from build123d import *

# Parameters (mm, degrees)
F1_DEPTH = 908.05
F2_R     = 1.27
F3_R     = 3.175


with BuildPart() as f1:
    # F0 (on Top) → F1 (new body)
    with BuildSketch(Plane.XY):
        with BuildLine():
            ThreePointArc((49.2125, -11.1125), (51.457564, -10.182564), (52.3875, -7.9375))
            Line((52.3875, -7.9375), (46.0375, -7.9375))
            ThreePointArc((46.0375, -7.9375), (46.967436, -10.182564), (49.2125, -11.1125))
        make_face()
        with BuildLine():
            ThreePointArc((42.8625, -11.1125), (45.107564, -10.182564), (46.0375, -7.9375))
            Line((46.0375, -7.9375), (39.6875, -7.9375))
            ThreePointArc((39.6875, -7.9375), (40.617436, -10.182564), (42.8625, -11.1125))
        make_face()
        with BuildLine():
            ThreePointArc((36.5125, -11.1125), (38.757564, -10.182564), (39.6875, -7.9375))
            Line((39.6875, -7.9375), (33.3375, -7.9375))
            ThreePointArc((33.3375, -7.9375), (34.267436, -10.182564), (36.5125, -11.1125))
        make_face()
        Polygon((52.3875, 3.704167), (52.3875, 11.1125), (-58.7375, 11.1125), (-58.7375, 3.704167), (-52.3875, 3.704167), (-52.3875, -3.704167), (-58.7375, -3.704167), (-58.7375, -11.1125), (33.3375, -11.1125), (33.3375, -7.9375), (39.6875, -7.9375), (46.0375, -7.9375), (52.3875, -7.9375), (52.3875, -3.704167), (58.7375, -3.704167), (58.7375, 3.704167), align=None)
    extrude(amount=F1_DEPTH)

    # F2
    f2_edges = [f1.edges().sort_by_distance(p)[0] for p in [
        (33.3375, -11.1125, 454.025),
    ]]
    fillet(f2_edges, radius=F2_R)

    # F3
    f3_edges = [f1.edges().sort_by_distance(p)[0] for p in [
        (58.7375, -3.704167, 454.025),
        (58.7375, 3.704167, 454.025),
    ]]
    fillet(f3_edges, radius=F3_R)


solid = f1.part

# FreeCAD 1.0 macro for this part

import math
import FreeCAD as App
import Part
import Sketcher

V = App.Vector
Q = App.Units.Quantity


def edges_at(feature, points):
    """Names of the edges that pass closest to the given points."""
    edges = feature.Shape.Edges
    near = lambda p: min(range(len(edges)), key=lambda i: edges[i].distToShape(Part.Vertex(*p))[0])
    return sorted({f"Edge{near(p) + 1}" for p in points})

doc = App.newDocument("Part")
body = doc.addObject("PartDesign::Body", "Body")

# Sketch on XY plane
sketch1 = body.newObject("Sketcher::SketchObject", "Sketch")
sketch1.AttachmentSupport = (doc.getObject("XY_Plane"), [""])
sketch1.MapMode = "FlatFace"
sketch1.addGeometry([
    Part.ArcOfCircle(Part.Circle(V(49.2, -7.9, 0), V(0, 0, 1), 3.2), math.radians(-90), math.radians(0)),  # 0
    Part.LineSegment(V(52.4, -7.9, 0), V(52.4, -3.7, 0)),  # 1
    Part.LineSegment(V(52.4, -3.7, 0), V(58.7, -3.7, 0)),  # 2
    Part.LineSegment(V(58.7, -3.7, 0), V(58.7, 3.7, 0)),  # 3
    Part.LineSegment(V(58.7, 3.7, 0), V(52.4, 3.7, 0)),  # 4
    Part.LineSegment(V(52.4, 3.7, 0), V(52.4, 11.1, 0)),  # 5
    Part.LineSegment(V(52.4, 11.1, 0), V(-58.7, 11.1, 0)),  # 6
    Part.LineSegment(V(-58.7, 11.1, 0), V(-58.7, 3.7, 0)),  # 7
    Part.LineSegment(V(-58.7, 3.7, 0), V(-52.4, 3.7, 0)),  # 8
    Part.LineSegment(V(-52.4, 3.7, 0), V(-52.4, -3.7, 0)),  # 9
    Part.LineSegment(V(-52.4, -3.7, 0), V(-58.7, -3.7, 0)),  # 10
    Part.LineSegment(V(-58.7, -3.7, 0), V(-58.7, -11.1, 0)),  # 11
    Part.LineSegment(V(-58.7, -11.1, 0), V(33.3, -11.1, 0)),  # 12
    Part.LineSegment(V(33.3, -11.1, 0), V(33.3, -7.9, 0)),  # 13
    Part.ArcOfCircle(Part.Circle(V(36.5, -7.9, 0), V(0, 0, 1), 3.2), math.radians(-180), math.radians(-90)),  # 14
    Part.ArcOfCircle(Part.Circle(V(36.5, -7.9, 0), V(0, 0, 1), 3.2), math.radians(-90), math.radians(0)),  # 15
    Part.ArcOfCircle(Part.Circle(V(42.9, -7.9, 0), V(0, 0, 1), 3.2), math.radians(-180), math.radians(-90)),  # 16
    Part.ArcOfCircle(Part.Circle(V(42.9, -7.9, 0), V(0, 0, 1), 3.2), math.radians(-90), math.radians(0)),  # 17
    Part.ArcOfCircle(Part.Circle(V(49.2, -7.9, 0), V(0, 0, 1), 3.2), math.radians(-180), math.radians(-90)),  # 18
], False)
sketch1.addConstraint([
    Sketcher.Constraint("Tangent", 0, 2, 1, 1),
    Sketcher.Constraint("Coincident", 1, 2, 2, 1),
    Sketcher.Constraint("Coincident", 2, 2, 3, 1),
    Sketcher.Constraint("Coincident", 3, 2, 4, 1),
    Sketcher.Constraint("Coincident", 4, 2, 5, 1),
    Sketcher.Constraint("Coincident", 5, 2, 6, 1),
    Sketcher.Constraint("Coincident", 6, 2, 7, 1),
    Sketcher.Constraint("Coincident", 7, 2, 8, 1),
    Sketcher.Constraint("Coincident", 8, 2, 9, 1),
    Sketcher.Constraint("Coincident", 9, 2, 10, 1),
    Sketcher.Constraint("Coincident", 10, 2, 11, 1),
    Sketcher.Constraint("Coincident", 11, 2, 12, 1),
    Sketcher.Constraint("Coincident", 12, 2, 13, 1),
    Sketcher.Constraint("Tangent", 13, 2, 14, 1),
    Sketcher.Constraint("Tangent", 14, 2, 15, 1),
    Sketcher.Constraint("Tangent", 15, 2, 16, 1),
    Sketcher.Constraint("Tangent", 16, 2, 17, 1),
    Sketcher.Constraint("Tangent", 17, 2, 18, 1),
    Sketcher.Constraint("Tangent", 18, 2, 0, 1),
    Sketcher.Constraint("Vertical", 1),
    Sketcher.Constraint("Horizontal", 2),
    Sketcher.Constraint("Vertical", 3),
    Sketcher.Constraint("Horizontal", 4),
    Sketcher.Constraint("Vertical", 5),
    Sketcher.Constraint("Horizontal", 6),
    Sketcher.Constraint("Vertical", 7),
    Sketcher.Constraint("Horizontal", 8),
    Sketcher.Constraint("Vertical", 9),
    Sketcher.Constraint("Horizontal", 10),
    Sketcher.Constraint("Vertical", 11),
    Sketcher.Constraint("Horizontal", 12),
    Sketcher.Constraint("Vertical", 13),
    Sketcher.Constraint("Equal", 0, 14),
    Sketcher.Constraint("Equal", 14, 15),
    Sketcher.Constraint("Equal", 15, 16),
    Sketcher.Constraint("Equal", 16, 17),
    Sketcher.Constraint("Equal", 17, 18),
    Sketcher.Constraint("Symmetric", 2, 2, 7, 2, -1, 1),
    Sketcher.Constraint("Symmetric", 4, 2, 9, 2, -1, 1),
    Sketcher.Constraint("Symmetric", 1, 2, 9, 2, -2),
    Sketcher.Constraint("Symmetric", 6, 2, 11, 2, -1),
    Sketcher.Constraint("Horizontal", 0, 3, 14, 3),
    Sketcher.Constraint("Horizontal", 15, 3, 16, 3),
    Sketcher.Constraint("Horizontal", 12, 2, 14, 2),
    Sketcher.Constraint("Vertical", 15, 3, 14, 2),
    Sketcher.Constraint("Vertical", 17, 3, 16, 2),
    Sketcher.Constraint("Vertical", 0, 3, 18, 2),
    Sketcher.Constraint("Equal", 3, 5),
    Sketcher.Constraint("Radius", 0, Q("0.125 in")),
    Sketcher.Constraint("DistanceX", 6, 2, 17, 3, Q("4 in")),
    Sketcher.Constraint("DistanceX", 2, 1, 2, 2, Q("0.25 in")),
    Sketcher.Constraint("DistanceY", 0, 2, 5, 2, Q("0.75 in")),
])
pad1 = body.newObject("PartDesign::Pad", "Pad")
pad1.Profile = sketch1
pad1.Length = Q("35.75 in")
doc.recompute()

fillet = body.newObject("PartDesign::Fillet", "Fillet")
fillet.Base = (pad1, edges_at(pad1, [(33.337, -11.113, 454.025)]))
fillet.Radius = Q("0.05 in")
doc.recompute()

fillet2 = body.newObject("PartDesign::Fillet", "Fillet001")
fillet2.Base = (fillet, edges_at(fillet, [(58.737, -3.704, 454.025), (58.737, 3.704, 454.025)]))
fillet2.Radius = Q("0.125 in")

doc.recompute()
